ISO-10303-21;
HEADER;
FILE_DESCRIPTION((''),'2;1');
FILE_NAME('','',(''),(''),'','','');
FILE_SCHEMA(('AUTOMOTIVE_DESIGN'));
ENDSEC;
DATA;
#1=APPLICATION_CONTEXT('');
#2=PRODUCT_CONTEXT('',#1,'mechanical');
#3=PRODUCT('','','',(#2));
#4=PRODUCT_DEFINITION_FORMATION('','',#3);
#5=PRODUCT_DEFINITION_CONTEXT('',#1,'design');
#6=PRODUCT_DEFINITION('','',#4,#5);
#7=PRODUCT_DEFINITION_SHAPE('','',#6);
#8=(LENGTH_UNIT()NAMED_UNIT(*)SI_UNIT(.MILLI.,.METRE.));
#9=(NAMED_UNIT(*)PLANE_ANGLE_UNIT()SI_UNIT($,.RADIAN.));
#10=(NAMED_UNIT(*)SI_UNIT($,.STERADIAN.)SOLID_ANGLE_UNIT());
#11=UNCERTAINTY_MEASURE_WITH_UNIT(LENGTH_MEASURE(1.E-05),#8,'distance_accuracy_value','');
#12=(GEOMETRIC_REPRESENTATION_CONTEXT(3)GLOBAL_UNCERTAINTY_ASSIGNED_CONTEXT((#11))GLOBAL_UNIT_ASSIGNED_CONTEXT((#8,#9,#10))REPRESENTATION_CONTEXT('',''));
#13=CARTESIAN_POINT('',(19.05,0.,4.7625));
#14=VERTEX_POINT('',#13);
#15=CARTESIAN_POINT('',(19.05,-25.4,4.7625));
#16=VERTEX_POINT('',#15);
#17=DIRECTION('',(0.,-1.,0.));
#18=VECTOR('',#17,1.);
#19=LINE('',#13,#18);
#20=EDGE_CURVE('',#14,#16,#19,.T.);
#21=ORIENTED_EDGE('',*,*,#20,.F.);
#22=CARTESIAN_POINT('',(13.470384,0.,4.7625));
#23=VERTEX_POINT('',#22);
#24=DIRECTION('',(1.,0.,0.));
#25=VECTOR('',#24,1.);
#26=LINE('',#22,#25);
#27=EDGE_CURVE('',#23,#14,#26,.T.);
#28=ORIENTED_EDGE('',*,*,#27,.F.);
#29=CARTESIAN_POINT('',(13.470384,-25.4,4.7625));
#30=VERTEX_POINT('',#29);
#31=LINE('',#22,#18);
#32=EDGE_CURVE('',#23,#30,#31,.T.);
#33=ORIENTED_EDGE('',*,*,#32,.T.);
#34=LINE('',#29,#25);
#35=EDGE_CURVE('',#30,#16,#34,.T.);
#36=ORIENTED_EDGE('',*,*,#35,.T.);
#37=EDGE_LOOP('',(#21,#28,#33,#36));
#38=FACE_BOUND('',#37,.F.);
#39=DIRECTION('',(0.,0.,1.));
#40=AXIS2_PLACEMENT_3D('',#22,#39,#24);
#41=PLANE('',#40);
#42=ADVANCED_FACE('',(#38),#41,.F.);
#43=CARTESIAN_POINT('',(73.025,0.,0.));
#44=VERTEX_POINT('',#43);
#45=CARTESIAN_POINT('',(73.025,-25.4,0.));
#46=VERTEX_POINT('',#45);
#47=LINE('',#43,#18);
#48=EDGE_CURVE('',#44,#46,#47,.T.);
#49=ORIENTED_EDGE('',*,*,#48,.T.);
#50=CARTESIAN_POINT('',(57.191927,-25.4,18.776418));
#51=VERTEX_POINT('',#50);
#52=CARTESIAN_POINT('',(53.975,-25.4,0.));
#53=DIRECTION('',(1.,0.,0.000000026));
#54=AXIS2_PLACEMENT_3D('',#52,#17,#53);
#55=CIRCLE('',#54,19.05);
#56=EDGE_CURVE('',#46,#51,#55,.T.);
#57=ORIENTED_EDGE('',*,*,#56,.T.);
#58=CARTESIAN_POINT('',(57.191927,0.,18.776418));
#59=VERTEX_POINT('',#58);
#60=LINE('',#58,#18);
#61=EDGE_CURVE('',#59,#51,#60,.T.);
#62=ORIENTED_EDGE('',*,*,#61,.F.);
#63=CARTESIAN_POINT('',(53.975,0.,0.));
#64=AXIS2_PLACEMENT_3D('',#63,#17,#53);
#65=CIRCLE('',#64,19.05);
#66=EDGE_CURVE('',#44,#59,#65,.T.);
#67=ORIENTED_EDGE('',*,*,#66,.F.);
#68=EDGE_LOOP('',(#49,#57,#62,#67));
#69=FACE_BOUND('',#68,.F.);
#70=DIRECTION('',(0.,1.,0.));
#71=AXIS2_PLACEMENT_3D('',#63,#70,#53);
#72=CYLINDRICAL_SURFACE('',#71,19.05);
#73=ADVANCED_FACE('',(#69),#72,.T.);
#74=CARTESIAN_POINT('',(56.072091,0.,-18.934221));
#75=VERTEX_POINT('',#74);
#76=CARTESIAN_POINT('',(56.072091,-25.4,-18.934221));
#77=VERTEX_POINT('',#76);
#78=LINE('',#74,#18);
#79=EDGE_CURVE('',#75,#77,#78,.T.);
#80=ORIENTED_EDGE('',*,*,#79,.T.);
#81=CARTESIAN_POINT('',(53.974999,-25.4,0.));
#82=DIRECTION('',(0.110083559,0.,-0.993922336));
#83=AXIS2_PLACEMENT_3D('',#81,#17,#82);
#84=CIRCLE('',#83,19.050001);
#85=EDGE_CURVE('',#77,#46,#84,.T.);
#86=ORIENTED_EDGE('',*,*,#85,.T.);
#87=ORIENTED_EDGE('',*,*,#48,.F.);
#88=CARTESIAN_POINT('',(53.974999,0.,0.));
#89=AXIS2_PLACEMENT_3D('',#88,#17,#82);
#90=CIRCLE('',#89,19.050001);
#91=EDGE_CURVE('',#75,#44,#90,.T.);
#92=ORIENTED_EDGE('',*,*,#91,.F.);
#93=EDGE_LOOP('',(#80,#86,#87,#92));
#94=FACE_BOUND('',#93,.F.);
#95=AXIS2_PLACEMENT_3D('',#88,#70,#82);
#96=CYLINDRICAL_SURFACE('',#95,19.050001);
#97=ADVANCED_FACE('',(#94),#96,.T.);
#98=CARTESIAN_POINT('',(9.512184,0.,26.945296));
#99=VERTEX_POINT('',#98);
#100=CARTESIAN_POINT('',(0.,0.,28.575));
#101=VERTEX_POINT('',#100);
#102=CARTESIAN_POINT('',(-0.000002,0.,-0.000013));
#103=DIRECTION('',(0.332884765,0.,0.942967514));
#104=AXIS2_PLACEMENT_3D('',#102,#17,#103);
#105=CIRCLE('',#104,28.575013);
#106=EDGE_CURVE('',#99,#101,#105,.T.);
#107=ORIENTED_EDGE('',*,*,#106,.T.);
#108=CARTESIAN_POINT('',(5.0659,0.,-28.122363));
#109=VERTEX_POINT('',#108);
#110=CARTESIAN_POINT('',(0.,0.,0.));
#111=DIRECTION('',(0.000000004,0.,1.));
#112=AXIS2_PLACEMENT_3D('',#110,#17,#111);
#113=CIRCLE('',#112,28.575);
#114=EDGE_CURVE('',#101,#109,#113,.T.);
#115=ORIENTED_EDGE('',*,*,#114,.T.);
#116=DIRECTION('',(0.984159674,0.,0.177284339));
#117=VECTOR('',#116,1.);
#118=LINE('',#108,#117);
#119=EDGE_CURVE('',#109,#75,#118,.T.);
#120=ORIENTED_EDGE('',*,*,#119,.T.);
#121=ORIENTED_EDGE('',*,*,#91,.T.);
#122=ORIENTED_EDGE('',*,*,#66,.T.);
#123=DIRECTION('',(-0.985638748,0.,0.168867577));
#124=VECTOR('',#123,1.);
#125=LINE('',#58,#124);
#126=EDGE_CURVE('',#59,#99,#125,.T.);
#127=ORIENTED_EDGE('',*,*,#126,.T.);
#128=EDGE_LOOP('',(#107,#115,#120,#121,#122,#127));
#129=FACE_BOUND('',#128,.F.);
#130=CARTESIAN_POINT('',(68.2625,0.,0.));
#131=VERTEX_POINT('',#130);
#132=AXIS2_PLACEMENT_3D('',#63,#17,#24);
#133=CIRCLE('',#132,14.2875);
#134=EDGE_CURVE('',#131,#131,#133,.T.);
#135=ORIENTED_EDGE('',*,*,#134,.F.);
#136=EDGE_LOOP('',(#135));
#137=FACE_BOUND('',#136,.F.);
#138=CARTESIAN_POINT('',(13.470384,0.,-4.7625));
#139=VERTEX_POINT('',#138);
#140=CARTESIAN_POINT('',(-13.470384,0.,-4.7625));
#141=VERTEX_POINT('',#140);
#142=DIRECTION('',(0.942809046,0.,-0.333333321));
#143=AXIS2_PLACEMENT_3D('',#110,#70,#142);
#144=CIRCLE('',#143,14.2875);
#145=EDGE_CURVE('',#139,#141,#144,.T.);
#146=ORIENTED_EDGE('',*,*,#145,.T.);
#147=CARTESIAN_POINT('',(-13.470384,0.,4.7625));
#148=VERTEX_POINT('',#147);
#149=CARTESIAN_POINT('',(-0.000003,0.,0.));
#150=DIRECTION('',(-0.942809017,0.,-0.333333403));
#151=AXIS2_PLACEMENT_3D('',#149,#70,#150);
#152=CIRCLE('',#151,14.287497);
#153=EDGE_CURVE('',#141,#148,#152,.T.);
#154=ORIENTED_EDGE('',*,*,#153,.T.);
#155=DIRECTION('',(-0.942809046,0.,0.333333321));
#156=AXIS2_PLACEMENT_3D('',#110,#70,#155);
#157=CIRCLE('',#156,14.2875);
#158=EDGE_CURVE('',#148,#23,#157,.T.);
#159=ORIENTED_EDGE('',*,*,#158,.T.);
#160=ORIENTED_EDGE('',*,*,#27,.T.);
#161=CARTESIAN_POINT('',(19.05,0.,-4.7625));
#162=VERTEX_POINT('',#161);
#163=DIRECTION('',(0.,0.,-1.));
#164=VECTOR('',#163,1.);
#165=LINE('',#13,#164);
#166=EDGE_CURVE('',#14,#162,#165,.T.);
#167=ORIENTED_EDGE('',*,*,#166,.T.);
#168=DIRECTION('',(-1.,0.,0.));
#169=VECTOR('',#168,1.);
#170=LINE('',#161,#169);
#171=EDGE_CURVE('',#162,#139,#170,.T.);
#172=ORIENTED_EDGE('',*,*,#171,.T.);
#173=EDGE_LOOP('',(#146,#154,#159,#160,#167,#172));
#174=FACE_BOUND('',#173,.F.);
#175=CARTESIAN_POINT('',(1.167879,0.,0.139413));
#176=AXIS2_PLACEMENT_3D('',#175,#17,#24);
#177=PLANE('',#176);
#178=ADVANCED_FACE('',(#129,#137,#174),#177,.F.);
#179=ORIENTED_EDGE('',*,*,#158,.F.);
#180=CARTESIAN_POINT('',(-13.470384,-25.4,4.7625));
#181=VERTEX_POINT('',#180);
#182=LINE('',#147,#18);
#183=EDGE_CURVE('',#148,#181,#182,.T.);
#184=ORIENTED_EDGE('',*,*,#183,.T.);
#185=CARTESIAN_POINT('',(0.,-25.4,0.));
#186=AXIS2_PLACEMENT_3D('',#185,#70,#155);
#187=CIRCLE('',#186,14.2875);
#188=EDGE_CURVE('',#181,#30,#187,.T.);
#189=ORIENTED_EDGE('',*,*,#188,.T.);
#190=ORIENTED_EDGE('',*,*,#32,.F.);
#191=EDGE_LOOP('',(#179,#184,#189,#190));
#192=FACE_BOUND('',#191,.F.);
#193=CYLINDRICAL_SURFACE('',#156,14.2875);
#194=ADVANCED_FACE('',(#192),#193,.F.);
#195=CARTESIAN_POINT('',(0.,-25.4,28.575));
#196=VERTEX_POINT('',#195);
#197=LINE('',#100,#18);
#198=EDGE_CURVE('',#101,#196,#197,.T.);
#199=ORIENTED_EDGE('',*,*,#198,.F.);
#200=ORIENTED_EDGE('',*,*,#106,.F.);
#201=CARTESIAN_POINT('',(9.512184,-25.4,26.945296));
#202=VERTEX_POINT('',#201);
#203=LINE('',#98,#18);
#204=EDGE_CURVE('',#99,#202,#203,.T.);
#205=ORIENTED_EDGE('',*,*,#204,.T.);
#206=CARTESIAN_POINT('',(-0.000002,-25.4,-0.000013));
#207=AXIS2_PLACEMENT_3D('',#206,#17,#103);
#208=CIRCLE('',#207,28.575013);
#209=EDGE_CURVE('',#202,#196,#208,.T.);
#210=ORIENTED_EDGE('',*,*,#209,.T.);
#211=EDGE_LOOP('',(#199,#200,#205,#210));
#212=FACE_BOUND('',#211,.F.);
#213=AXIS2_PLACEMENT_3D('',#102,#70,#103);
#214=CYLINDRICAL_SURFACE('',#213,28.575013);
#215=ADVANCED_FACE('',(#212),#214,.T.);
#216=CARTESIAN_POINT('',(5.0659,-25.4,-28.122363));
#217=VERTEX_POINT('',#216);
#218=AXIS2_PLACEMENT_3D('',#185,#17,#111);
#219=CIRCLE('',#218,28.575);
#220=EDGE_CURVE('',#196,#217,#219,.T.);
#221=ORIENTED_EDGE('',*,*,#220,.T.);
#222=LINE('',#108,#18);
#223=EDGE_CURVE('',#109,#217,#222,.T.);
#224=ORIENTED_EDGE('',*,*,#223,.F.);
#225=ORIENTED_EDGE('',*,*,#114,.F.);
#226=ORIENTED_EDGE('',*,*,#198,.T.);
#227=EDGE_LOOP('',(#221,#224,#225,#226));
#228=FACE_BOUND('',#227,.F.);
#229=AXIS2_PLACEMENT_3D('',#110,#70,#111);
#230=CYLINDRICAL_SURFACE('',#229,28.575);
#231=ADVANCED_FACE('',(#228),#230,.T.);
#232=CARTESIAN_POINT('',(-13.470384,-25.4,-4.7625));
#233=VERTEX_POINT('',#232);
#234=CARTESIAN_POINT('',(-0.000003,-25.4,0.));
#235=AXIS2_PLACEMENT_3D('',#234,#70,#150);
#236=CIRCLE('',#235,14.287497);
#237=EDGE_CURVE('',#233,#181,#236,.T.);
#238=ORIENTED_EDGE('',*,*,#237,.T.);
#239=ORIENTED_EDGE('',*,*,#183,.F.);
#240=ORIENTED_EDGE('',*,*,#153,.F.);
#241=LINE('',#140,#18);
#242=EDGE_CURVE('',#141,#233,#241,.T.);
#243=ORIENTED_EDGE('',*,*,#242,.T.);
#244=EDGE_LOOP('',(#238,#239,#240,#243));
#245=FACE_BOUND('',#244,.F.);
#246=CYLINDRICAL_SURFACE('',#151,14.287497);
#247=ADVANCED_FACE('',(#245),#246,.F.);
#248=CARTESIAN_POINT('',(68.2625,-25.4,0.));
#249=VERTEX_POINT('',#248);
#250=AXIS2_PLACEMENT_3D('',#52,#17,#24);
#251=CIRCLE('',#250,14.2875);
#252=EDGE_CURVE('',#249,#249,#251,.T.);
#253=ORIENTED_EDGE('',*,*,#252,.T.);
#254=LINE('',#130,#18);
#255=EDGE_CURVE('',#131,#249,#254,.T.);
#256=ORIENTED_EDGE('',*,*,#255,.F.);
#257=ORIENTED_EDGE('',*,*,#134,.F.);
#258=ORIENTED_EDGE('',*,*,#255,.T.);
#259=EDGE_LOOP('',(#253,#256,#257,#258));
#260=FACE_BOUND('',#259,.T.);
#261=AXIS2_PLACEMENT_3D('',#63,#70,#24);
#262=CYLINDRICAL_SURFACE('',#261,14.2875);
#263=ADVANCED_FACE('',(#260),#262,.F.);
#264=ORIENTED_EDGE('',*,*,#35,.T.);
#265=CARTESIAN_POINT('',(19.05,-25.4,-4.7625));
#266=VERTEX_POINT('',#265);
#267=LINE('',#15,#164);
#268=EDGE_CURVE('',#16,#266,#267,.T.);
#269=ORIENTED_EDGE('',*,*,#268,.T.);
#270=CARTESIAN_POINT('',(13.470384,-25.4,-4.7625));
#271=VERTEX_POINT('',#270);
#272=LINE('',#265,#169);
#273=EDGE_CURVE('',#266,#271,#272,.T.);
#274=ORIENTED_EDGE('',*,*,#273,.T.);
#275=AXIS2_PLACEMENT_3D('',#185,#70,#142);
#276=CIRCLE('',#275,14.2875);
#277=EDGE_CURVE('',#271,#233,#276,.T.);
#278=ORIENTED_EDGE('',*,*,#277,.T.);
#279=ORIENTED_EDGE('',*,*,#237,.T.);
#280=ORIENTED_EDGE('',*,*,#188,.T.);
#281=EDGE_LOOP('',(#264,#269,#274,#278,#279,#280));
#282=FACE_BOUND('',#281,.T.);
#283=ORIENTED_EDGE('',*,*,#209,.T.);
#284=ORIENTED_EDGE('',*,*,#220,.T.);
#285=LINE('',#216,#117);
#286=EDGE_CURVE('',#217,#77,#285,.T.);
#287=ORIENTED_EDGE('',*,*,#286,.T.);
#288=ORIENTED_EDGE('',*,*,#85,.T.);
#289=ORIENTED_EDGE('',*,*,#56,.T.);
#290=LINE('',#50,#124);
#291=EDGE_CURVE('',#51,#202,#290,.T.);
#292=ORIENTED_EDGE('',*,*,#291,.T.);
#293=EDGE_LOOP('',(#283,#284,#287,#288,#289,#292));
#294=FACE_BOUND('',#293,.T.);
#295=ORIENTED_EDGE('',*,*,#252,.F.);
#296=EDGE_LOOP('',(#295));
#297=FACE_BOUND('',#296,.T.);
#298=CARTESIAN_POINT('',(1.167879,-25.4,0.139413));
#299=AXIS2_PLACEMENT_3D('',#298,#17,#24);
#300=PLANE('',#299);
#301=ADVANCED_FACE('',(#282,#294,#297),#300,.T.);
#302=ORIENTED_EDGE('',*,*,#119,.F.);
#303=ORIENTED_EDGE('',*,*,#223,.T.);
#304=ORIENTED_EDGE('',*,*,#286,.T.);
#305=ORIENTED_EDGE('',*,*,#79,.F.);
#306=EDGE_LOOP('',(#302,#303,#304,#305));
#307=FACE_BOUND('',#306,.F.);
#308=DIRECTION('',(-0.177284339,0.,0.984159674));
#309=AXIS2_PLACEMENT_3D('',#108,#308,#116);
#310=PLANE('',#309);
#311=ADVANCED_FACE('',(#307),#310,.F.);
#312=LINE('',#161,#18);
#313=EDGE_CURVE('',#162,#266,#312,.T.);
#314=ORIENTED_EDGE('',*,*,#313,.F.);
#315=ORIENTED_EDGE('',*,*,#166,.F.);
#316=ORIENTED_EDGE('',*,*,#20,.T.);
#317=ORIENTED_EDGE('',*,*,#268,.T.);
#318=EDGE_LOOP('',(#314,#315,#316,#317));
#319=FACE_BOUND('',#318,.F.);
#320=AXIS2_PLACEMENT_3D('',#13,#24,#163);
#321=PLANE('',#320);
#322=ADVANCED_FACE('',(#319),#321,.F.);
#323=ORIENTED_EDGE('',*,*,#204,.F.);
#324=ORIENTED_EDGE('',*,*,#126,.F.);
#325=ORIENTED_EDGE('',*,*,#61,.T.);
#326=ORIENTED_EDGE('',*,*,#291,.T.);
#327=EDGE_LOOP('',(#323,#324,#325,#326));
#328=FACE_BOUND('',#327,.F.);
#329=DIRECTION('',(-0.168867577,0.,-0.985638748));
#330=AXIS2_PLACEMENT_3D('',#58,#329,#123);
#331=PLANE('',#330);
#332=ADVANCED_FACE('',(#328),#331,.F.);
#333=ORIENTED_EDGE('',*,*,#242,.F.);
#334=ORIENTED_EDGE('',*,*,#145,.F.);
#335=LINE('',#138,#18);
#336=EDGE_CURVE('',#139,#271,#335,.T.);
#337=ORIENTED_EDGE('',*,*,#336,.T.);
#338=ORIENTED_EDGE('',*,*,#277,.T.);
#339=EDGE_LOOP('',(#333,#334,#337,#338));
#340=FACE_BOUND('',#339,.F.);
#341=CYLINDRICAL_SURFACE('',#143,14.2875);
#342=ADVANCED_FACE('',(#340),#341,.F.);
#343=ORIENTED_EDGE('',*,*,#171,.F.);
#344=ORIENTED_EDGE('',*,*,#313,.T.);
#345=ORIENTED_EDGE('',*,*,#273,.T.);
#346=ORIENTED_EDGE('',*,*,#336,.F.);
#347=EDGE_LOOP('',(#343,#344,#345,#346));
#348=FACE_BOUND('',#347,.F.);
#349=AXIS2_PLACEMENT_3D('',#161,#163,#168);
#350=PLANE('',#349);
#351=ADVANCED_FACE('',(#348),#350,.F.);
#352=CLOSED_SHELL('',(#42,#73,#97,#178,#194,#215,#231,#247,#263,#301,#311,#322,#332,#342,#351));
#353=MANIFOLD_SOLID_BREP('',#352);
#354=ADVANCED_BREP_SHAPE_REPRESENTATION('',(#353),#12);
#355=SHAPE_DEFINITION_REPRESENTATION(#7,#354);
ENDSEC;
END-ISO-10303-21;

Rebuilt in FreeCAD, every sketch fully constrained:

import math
import FreeCAD as App
import Part
import Sketcher
Q = App.Units.Quantity

doc = App.newDocument("Part")
params = doc.addObject("Spreadsheet::Sheet", "Params")
for row, (alias, value) in enumerate([
    ("sketch1_radius", "0.75 in"),
    ("sketch1_diameter", "1.125 in"),
    ("sketch1_radius2", "1.125 in"),
    ("sketch1_height", "0.375 in"),
    ("pad1_length", "1 in"),
], start=1):
    params.set(f"A{row}", alias)
    params.set(f"B{row}", "=" + value)
    params.setAlias(f"B{row}", alias)

body = doc.addObject("PartDesign::Body", "Body")

# Sketch on XZ plane
sketch1 = body.newObject("Sketcher::SketchObject", "Sketch")
sketch1.AttachmentSupport = (doc.getObject("XZ_Plane"), [""])
sketch1.MapMode = "FlatFace"
sketch1.addGeometry([
    Part.ArcOfCircle(Part.Circle(App.Vector(0, 0, 0), App.Vector(0, 0, 1), 29), math.radians(70.56), math.radians(90)),  # 0
    Part.ArcOfCircle(Part.Circle(App.Vector(0, 0, 0), App.Vector(0, 0, 1), 29), math.radians(90), math.radians(280)),  # 1
    Part.LineSegment(App.Vector(5, -28, 0), App.Vector(56, -19, 0)),  # 2
    Part.ArcOfCircle(Part.Circle(App.Vector(54, 0, 0), App.Vector(0, 0, 1), 19), math.radians(-84), math.radians(0)),  # 3
    Part.ArcOfCircle(Part.Circle(App.Vector(54, 0, 0), App.Vector(0, 0, 1), 19), math.radians(0), math.radians(80)),  # 4
    Part.LineSegment(App.Vector(57, 19, 0), App.Vector(10, 27, 0)),  # 5
    Part.ArcOfCircle(Part.Circle(App.Vector(0, 0, 0), App.Vector(0, 0, 1), 14), math.radians(19), math.radians(161)),  # 6
    Part.LineSegment(App.Vector(13, 5, 0), App.Vector(19, 5, 0)),  # 7
    Part.LineSegment(App.Vector(19, 5, 0), App.Vector(19, -5, 0)),  # 8
    Part.LineSegment(App.Vector(19, -5, 0), App.Vector(13, -5, 0)),  # 9
    Part.ArcOfCircle(Part.Circle(App.Vector(0, 0, 0), App.Vector(0, 0, 1), 14), math.radians(-161), math.radians(-19)),  # 10
    Part.ArcOfCircle(Part.Circle(App.Vector(0, 0, 0), App.Vector(0, 0, 1), 14), math.radians(161), math.radians(199)),  # 11
    Part.Circle(App.Vector(54, 0, 0), App.Vector(0, 0, 1), 14),  # 12
], False)
sketch1.addConstraint([
    Sketcher.Constraint("Tangent", 0, 2, 1, 1),
    Sketcher.Constraint("Tangent", 1, 2, 2, 1),
    Sketcher.Constraint("Coincident", 2, 2, 3, 1),
    Sketcher.Constraint("Tangent", 3, 2, 4, 1),
    Sketcher.Constraint("Tangent", 4, 2, 5, 1),
    Sketcher.Constraint("Coincident", 5, 2, 0, 1),
    Sketcher.Constraint("Coincident", 6, 1, 7, 1),
    Sketcher.Constraint("Coincident", 7, 2, 8, 1),
    Sketcher.Constraint("Coincident", 8, 2, 9, 1),
    Sketcher.Constraint("Coincident", 9, 2, 10, 2),
    Sketcher.Constraint("Tangent", 10, 1, 11, 2),
    Sketcher.Constraint("Tangent", 11, 1, 6, 2),
    Sketcher.Constraint("Horizontal", 7),
    Sketcher.Constraint("Vertical", 8),
    Sketcher.Constraint("Horizontal", 9),
    Sketcher.Constraint("Coincident", 1, 3, -1, 1),
    Sketcher.Constraint("Coincident", 6, 3, -1, 1),
    Sketcher.Constraint("Coincident", 10, 3, -1, 1),
    Sketcher.Constraint("Coincident", 12, 3, 3, 3),
    Sketcher.Constraint("Equal", 3, 4),
    Sketcher.Constraint("Equal", 10, 12),
    Sketcher.Constraint("PointOnObject", 3, 3, -1),
    Sketcher.Constraint("PointOnObject", 0, 2, -2),
    Sketcher.Constraint("PointOnObject", 3, 2, -1),
    Sketcher.Constraint("Horizontal", 9, 2, 10, 1),
    Sketcher.Constraint("Horizontal", 7, 2, 11, 1),
    Sketcher.Constraint("Vertical", 6, 1, 9, 2),
    Sketcher.Constraint("Radius", 3, Q("0.75 in")),
    Sketcher.Constraint("Diameter", 12, Q("1.125 in")),
    Sketcher.Constraint("Radius", 1, Q("1.125 in")),
    Sketcher.Constraint("DistanceY", 8, 2, 8, 1, Q("0.375 in")),
    Sketcher.Constraint("DistanceX", -1, 1, 7, 2, Q("0.75 in")),
    Sketcher.Constraint("DistanceX", -1, 1, 3, 3, Q("2.125 in")),
    Sketcher.Constraint("Radius", 0, Q("28.575013 mm")),
    Sketcher.Constraint("Distance", 2, Q("51.82715 mm")),
    Sketcher.Constraint("Distance", 5, Q("48.374461 mm")),
])
sketch1.setExpression("Constraints[27]", "Params.sketch1_radius")
sketch1.setExpression("Constraints[28]", "Params.sketch1_diameter")
sketch1.setExpression("Constraints[29]", "Params.sketch1_radius2")
sketch1.setExpression("Constraints[30]", "Params.sketch1_height")
pad1 = body.newObject("PartDesign::Pad", "Pad")
pad1.Profile = sketch1
pad1.setExpression("Length", "Params.pad1_length")

doc.recompute()
